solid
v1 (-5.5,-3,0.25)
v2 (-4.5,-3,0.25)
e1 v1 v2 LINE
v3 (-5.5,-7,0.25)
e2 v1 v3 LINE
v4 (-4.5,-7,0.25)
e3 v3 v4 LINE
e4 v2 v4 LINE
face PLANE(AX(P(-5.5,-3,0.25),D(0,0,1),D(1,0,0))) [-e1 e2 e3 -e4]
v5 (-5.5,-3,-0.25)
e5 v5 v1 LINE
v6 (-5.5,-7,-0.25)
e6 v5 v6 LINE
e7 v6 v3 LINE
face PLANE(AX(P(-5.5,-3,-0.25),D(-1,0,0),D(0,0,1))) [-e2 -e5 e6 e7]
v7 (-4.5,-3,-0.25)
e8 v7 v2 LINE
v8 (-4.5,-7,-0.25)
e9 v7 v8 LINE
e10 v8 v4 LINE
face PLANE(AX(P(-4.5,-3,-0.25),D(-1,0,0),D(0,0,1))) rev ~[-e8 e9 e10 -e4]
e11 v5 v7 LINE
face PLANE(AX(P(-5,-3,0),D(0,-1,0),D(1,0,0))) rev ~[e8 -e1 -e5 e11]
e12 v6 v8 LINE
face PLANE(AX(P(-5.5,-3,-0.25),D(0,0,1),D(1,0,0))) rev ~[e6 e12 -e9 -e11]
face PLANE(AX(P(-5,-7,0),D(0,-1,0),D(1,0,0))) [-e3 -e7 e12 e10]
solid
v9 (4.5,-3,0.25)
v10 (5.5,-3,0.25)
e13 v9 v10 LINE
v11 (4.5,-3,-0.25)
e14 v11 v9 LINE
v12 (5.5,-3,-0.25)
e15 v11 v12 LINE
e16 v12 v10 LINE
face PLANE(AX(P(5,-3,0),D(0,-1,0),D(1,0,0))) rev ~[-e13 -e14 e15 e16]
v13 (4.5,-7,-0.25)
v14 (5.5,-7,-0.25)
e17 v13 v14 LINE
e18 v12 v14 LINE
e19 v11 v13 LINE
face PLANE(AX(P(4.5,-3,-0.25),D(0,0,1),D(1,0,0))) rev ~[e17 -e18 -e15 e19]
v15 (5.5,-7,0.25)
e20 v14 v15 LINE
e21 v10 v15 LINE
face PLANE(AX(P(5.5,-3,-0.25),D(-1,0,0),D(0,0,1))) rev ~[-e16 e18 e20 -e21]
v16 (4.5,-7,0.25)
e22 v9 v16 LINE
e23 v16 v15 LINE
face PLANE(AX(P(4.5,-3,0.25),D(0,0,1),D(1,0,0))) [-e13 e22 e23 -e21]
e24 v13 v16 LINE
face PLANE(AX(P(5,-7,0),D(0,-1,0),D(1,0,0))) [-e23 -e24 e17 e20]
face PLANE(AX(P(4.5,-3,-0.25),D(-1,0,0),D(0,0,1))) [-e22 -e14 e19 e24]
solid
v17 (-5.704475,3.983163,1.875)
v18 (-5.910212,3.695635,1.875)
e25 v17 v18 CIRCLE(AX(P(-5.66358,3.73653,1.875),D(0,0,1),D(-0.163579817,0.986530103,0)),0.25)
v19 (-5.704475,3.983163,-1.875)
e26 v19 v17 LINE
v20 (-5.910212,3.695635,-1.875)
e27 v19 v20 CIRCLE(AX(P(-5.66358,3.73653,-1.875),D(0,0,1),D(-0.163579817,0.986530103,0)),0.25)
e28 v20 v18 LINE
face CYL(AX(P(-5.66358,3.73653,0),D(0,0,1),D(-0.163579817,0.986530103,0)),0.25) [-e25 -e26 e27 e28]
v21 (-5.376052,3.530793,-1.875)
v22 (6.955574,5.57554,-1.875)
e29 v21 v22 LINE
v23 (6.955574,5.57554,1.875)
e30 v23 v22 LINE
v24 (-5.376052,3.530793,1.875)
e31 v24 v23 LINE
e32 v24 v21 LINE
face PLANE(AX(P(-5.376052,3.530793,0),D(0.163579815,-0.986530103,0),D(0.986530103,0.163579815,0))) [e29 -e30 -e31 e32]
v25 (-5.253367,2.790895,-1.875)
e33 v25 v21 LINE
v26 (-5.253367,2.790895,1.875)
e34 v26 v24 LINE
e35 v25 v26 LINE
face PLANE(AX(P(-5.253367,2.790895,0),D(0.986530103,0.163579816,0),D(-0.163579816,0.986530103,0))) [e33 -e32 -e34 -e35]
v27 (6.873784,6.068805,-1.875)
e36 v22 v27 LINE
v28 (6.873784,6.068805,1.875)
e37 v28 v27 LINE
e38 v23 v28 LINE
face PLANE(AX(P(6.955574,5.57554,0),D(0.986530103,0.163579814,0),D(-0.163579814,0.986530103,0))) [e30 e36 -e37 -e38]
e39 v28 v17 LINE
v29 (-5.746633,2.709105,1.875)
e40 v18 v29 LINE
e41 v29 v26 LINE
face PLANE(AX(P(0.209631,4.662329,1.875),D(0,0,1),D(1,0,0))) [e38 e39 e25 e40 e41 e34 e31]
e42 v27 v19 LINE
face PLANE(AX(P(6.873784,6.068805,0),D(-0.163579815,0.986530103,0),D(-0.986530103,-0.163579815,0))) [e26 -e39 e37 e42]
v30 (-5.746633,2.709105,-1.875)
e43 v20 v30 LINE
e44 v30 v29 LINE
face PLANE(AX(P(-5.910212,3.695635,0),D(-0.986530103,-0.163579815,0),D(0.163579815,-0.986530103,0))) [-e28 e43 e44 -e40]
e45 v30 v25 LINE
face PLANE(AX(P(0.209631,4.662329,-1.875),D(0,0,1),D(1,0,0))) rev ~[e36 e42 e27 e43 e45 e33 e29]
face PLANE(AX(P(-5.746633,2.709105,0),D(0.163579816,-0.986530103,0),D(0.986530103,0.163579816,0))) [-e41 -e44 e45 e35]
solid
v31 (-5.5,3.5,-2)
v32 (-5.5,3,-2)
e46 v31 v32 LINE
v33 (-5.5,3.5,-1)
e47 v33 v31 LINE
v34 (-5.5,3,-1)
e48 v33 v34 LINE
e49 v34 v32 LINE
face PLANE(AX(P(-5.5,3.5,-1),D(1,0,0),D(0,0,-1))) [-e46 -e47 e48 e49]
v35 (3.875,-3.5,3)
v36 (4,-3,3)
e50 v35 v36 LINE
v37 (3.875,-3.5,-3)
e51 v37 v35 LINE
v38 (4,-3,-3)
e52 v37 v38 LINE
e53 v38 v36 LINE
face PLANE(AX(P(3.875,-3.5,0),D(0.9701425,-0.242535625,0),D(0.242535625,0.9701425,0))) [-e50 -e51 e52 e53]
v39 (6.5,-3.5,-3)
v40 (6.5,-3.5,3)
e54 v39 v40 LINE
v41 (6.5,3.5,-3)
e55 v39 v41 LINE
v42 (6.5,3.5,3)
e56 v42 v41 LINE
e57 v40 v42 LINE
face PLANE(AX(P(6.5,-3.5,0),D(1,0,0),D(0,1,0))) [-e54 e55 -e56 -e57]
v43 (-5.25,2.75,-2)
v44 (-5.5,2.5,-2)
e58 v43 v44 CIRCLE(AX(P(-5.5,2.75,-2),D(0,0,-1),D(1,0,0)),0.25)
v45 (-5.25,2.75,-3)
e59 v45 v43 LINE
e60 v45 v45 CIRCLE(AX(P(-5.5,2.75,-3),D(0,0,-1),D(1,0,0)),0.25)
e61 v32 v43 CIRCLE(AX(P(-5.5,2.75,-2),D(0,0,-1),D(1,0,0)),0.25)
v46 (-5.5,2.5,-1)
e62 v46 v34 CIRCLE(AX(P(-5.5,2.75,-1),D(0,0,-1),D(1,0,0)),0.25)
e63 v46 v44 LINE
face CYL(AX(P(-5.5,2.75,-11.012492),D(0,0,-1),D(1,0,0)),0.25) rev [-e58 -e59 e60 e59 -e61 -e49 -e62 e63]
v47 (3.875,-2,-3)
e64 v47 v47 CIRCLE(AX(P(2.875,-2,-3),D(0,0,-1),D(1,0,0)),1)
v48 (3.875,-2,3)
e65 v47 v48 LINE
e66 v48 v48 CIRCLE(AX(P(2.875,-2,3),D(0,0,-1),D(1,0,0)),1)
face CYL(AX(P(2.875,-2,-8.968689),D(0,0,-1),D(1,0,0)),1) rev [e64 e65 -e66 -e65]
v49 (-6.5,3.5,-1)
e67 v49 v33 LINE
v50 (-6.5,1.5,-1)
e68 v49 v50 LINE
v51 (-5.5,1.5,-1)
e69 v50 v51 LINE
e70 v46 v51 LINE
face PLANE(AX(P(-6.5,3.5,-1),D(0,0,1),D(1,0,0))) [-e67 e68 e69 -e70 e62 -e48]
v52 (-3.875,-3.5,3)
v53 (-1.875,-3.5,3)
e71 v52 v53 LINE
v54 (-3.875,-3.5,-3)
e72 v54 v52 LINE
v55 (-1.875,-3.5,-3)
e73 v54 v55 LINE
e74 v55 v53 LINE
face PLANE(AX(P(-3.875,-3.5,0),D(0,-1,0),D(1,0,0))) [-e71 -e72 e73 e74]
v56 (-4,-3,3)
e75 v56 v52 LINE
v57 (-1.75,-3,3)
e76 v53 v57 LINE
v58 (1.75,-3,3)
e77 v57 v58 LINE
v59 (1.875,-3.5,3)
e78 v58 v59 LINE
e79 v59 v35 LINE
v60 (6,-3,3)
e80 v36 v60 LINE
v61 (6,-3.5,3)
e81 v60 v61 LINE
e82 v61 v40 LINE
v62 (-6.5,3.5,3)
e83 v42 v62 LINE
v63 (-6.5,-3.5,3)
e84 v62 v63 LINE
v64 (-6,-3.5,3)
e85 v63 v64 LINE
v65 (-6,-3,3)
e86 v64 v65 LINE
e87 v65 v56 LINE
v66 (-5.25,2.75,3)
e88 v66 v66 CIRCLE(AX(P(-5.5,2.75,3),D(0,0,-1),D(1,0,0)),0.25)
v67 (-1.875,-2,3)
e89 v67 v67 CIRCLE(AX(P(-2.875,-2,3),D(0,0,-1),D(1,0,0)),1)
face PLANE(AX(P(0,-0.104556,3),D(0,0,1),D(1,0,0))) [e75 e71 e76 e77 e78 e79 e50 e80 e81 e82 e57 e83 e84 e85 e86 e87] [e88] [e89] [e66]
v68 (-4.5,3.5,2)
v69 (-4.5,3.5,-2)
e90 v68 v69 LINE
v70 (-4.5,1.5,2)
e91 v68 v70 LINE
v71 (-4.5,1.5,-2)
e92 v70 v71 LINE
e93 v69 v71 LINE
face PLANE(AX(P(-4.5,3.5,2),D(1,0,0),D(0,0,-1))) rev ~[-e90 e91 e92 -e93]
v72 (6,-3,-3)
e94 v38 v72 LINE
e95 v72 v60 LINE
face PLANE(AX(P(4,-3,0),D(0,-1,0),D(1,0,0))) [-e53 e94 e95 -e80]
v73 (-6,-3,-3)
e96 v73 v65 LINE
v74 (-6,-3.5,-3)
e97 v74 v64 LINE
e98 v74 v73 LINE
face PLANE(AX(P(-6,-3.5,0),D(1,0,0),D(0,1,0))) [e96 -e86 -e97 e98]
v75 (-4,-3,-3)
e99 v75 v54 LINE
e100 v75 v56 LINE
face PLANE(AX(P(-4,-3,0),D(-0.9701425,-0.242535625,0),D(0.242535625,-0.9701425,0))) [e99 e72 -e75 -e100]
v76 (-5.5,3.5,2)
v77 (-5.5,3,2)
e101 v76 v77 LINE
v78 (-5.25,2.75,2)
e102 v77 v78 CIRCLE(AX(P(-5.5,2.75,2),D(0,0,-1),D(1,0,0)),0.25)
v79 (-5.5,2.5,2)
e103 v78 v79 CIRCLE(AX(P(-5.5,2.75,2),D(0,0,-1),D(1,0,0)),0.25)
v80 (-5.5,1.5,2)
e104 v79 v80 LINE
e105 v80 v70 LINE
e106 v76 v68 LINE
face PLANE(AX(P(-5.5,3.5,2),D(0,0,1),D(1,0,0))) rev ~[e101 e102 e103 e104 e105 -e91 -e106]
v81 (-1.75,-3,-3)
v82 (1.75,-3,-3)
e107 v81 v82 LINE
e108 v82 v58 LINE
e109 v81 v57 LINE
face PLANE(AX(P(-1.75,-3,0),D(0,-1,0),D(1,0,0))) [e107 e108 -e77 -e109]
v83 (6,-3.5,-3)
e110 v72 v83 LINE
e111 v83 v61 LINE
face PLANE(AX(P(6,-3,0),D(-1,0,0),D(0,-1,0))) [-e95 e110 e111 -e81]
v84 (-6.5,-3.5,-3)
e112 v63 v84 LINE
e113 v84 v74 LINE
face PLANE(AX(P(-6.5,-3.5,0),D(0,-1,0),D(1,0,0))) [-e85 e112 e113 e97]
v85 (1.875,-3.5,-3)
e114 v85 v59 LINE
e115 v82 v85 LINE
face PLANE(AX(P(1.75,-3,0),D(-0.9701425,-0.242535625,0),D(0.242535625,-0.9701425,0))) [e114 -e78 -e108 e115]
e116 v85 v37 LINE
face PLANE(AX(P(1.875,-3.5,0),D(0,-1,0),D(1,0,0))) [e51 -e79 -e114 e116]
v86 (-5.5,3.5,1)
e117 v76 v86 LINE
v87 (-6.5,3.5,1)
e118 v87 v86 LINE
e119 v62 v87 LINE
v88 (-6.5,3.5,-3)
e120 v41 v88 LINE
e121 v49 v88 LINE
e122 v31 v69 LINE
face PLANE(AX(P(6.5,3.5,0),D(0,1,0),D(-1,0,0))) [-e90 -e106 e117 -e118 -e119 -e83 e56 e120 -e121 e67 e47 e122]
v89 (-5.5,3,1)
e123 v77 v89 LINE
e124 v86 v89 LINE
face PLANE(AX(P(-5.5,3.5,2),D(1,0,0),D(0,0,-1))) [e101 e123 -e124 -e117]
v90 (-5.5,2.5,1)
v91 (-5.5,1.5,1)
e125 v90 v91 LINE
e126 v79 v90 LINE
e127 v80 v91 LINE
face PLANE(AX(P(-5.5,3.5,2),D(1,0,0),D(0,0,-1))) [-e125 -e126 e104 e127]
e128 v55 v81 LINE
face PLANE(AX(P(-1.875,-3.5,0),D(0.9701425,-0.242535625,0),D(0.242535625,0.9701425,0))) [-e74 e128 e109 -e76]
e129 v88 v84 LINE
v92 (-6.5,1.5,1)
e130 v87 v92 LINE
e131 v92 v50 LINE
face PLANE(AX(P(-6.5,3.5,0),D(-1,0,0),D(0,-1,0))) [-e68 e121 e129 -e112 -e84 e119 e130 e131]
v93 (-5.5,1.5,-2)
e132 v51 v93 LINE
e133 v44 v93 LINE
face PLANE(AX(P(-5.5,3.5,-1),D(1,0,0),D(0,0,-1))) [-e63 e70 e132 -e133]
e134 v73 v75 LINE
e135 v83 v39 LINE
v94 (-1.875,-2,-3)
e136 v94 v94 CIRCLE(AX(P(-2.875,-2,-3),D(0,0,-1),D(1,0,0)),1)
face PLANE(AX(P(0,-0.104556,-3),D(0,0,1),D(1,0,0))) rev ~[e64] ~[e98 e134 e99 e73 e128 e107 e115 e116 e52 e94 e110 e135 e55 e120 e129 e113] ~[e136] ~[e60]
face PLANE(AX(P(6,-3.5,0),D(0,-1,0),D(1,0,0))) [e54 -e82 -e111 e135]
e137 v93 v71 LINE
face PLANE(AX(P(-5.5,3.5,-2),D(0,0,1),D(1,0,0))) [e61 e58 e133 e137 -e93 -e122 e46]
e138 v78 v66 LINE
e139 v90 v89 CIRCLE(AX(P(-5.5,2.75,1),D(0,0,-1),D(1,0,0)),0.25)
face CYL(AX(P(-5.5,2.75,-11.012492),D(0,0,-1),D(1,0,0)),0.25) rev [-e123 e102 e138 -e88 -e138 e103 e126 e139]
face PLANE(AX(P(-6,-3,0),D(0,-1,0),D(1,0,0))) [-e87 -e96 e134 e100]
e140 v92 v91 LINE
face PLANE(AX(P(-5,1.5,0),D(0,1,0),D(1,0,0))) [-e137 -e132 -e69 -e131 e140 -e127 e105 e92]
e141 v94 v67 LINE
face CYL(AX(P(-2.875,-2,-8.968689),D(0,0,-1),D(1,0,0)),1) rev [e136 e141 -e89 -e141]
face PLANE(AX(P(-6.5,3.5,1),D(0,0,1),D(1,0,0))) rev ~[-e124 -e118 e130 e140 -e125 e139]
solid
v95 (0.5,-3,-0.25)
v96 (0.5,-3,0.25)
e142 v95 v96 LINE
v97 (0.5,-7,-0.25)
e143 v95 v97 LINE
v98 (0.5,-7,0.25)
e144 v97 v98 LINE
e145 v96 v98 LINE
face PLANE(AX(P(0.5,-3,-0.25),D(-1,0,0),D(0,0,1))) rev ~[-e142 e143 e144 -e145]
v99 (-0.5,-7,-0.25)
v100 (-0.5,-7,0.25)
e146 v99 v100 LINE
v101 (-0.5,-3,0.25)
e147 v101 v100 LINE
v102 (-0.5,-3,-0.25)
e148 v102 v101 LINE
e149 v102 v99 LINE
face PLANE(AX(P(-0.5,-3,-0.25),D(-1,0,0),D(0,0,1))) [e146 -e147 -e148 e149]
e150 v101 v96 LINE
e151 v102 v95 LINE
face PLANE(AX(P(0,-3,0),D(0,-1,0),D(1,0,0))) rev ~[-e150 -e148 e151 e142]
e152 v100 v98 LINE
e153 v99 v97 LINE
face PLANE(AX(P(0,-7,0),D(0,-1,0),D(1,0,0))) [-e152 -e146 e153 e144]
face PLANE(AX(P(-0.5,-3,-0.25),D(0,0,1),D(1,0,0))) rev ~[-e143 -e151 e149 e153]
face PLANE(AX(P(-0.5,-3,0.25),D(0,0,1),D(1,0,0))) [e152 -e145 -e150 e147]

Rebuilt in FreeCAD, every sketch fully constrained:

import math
import FreeCAD as App
import Part
import Sketcher

V = App.Vector
Q = App.Units.Quantity


def add_polygon(sketch, points):
    """Adds a closed chain of lines whose ends are joined by coincident constraints."""
    first, n = sketch.GeometryCount, len(points)
    for a, b in zip(points, points[1:] + points[:1]):
        sketch.addGeometry(Part.LineSegment(App.Vector(*a, 0), App.Vector(*b, 0)), False)
    for i in range(n):
        sketch.addConstraint(Sketcher.Constraint("Coincident", first + i, 2, first + (i + 1) % n, 1))

doc = App.newDocument("Part")
params = doc.addObject("Spreadsheet::Sheet", "Params")
for row, (alias, value) in enumerate([
    ("sketch1_width", "2 mm"),
    ("sketch1_width2", "13 mm"),
    ("sketch1_height", "7 mm"),
    ("sketch1_width3", "0.5 mm"),
    ("sketch1_width4", "3.5 mm"),
    ("pad1_length", "6 mm"),
    ("sketch2_diameter", "2 mm"),
    ("sketch3_diameter", "0.5 mm"),
    ("sketch4_width", "1 mm"),
    ("sketch4_height", "4 mm"),
    ("pocket3_length", "2 mm"),
    ("sketch5_width", "1 mm"),
    ("sketch5_height", "0.5 mm"),
    ("pad2_length", "4 mm"),
    ("sketch6_width", "1 mm"),
    ("sketch6_height", "0.5 mm"),
    ("pad3_length", "4 mm"),
    ("sketch7_width", "1 mm"),
    ("sketch7_height", "0.5 mm"),
    ("pad4_length", "4 mm"),
    ("sketch8_radius", "0.25 mm"),
    ("sketch8_length", "1 mm"),
    ("sketch8_length2", "0.5 mm"),
    ("sketch8_length3", "12.5 mm"),
    ("pad5_length", "3.75 mm"),
], start=1):
    params.set(f"A{row}", alias)
    params.set(f"B{row}", "=" + value)
    params.setAlias(f"B{row}", alias)

body = doc.addObject("PartDesign::Body", "Body")

sketch1 = body.newObject("Sketcher::SketchObject", "Sketch")
sketch1.AttachmentSupport = (doc.getObject("XY_Plane"), [""])
sketch1.MapMode = "FlatFace"
add_polygon(sketch1, [(-6.5, -3.5), (-6, -3.5), (-6, -3), (-4, -3), (-3.9, -3.5), (-1.9, -3.5), (-1.8, -3), (1.8, -3), (1.9, -3.5), (3.9, -3.5), (4, -3), (6, -3), (6, -3.5), (6.5, -3.5), (6.5, 3.5), (-6.5, 3.5)])
sketch1.addConstraint([
    Sketcher.Constraint("Horizontal", 0),
    Sketcher.Constraint("Vertical", 1),
    Sketcher.Constraint("Horizontal", 2),
    Sketcher.Constraint("Horizontal", 4),
    Sketcher.Constraint("Horizontal", 6),
    Sketcher.Constraint("Horizontal", 8),
    Sketcher.Constraint("Horizontal", 10),
    Sketcher.Constraint("Vertical", 11),
    Sketcher.Constraint("Horizontal", 12),
    Sketcher.Constraint("Vertical", 13),
    Sketcher.Constraint("Horizontal", 14),
    Sketcher.Constraint("Vertical", 15),
    Sketcher.Constraint("Symmetric", 12, 2, 14, 2, -1, 1),
    Sketcher.Constraint("Symmetric", 4, 2, 7, 2, -2),
    Sketcher.Constraint("Symmetric", 2, 2, 9, 2, -2),
    Sketcher.Constraint("Symmetric", 0, 2, 11, 2, -2),
    Sketcher.Constraint("Parallel", 3, 7),
    Sketcher.Constraint("Parallel", 5, 9),
    Sketcher.Constraint("Horizontal", 0, 2, 3, 2),
    Sketcher.Constraint("Horizontal", 2, 2, 5, 2),
    Sketcher.Constraint("Equal", 2, 4),
    Sketcher.Constraint("Equal", 4, 8),
    Sketcher.Constraint("Equal", 12, 1),
    Sketcher.Constraint("DistanceX", 2, 1, 2, 2, Q("2 mm")),
    Sketcher.Constraint("DistanceX", 14, 2, 14, 1, Q("13 mm")),
    Sketcher.Constraint("DistanceY", 13, 1, 13, 2, Q("7 mm")),
    Sketcher.Constraint("DistanceX", 0, 1, 0, 2, Q("0.5 mm")),
    Sketcher.Constraint("DistanceX", 6, 1, 6, 2, Q("3.5 mm")),
])
sketch1.setExpression("Constraints[39]", "Params.sketch1_width")
sketch1.setExpression("Constraints[40]", "Params.sketch1_width2")
sketch1.setExpression("Constraints[41]", "Params.sketch1_height")
sketch1.setExpression("Constraints[42]", "Params.sketch1_width3")
sketch1.setExpression("Constraints[43]", "Params.sketch1_width4")
pad1 = body.newObject("PartDesign::Pad", "Pad")
pad1.Profile = sketch1
pad1.setExpression("Length", "Params.pad1_length")
pad1.Midplane = True

sketch2 = body.newObject("Sketcher::SketchObject", "Sketch001")
sketch2.AttachmentSupport = (doc.getObject("XY_Plane"), [""])
sketch2.MapMode = "FlatFace"
sketch2.addGeometry([
    Part.Circle(V(-2.9, -2, 0), V(0, 0, 1), 1),
    Part.Circle(V(2.9, -2, 0), V(0, 0, 1), 1),
], False)
sketch2.addConstraint([
    Sketcher.Constraint("Equal", 0, 1),
    Sketcher.Constraint("Symmetric", 0, 3, 1, 3, -2),
    Sketcher.Constraint("Diameter", 0, Q("2 mm")),
    Sketcher.Constraint("DistanceY", 0, 3, -1, 1, Q("2 mm")),
    Sketcher.Constraint("DistanceX", 0, 3, 1, 3, Q("5.75 mm")),
])
sketch2.setExpression("Constraints[2]", "Params.sketch2_diameter")
pocket1 = body.newObject("PartDesign::Pocket", "Pocket")
pocket1.Profile = sketch2
pocket1.Type = "ThroughAll"
pocket1.Midplane = True

sketch3 = body.newObject("Sketcher::SketchObject", "Sketch002")
sketch3.AttachmentSupport = (doc.getObject("XY_Plane"), [""])
sketch3.MapMode = "FlatFace"
sketch3.addGeometry(Part.Circle(V(-5.5, 2.75, 0), V(0, 0, 1), 0.25), False)
sketch3.addConstraint([
    Sketcher.Constraint("Diameter", 0, Q("0.5 mm")),
    Sketcher.Constraint("DistanceX", 0, 3, -1, 1, Q("5.5 mm")),
    Sketcher.Constraint("DistanceY", -1, 1, 0, 3, Q("2.75 mm")),
])
sketch3.setExpression("Constraints[0]", "Params.sketch3_diameter")
pocket2 = body.newObject("PartDesign::Pocket", "Pocket001")
pocket2.Profile = sketch3
pocket2.Type = "ThroughAll"
pocket2.Midplane = True

sketch4 = body.newObject("Sketcher::SketchObject", "Sketch003")
sketch4.AttachmentSupport = (doc.getObject("XZ_Plane"), [""])
sketch4.MapMode = "FlatFace"
sketch4.AttachmentOffset = App.Placement(V(0, 0, -3.5), App.Rotation())
add_polygon(sketch4, [(-5.5, 1), (-5.5, 2), (-4.5, 2), (-4.5, -2), (-5.5, -2), (-5.5, -1), (-6.5, -1), (-6.5, 1)])
sketch4.addConstraint([
    Sketcher.Constraint("Vertical", 0),
    Sketcher.Constraint("Horizontal", 1),
    Sketcher.Constraint("Vertical", 2),
    Sketcher.Constraint("Horizontal", 3),
    Sketcher.Constraint("Vertical", 4),
    Sketcher.Constraint("Horizontal", 5),
    Sketcher.Constraint("Vertical", 6),
    Sketcher.Constraint("Horizontal", 7),
    Sketcher.Constraint("Symmetric", 0, 2, 3, 2, -1),
    Sketcher.Constraint("Equal", 3, 5),
    Sketcher.Constraint("Equal", 7, 0),
    Sketcher.Constraint("Equal", 0, 4),
    Sketcher.Constraint("DistanceX", 1, 1, 1, 2, Q("1 mm")),
    Sketcher.Constraint("DistanceY", 2, 2, 2, 1, Q("4 mm")),
    Sketcher.Constraint("DistanceX", 0, 2, -1, 1, Q("5.5 mm")),
])
sketch4.setExpression("Constraints[20]", "Params.sketch4_width")
sketch4.setExpression("Constraints[21]", "Params.sketch4_height")
pocket3 = body.newObject("PartDesign::Pocket", "Pocket002")
pocket3.Profile = sketch4
pocket3.setExpression("Length", "Params.pocket3_length")
pocket3.Reversed = True
body2 = doc.addObject("PartDesign::Body", "Body001")

sketch5 = body2.newObject("Sketcher::SketchObject", "Sketch004")
sketch5.AttachmentSupport = (doc.getObject("XZ_Plane001"), [""])
sketch5.MapMode = "FlatFace"
sketch5.AttachmentOffset = App.Placement(V(0, 0, 3), App.Rotation())
add_polygon(sketch5, [(-0.5, 0.2), (-0.5, -0.2), (0.5, -0.2), (0.5, 0.2)])
sketch5.addConstraint([
    Sketcher.Constraint("Vertical", 0),
    Sketcher.Constraint("Horizontal", 1),
    Sketcher.Constraint("Vertical", 2),
    Sketcher.Constraint("Horizontal", 3),
    Sketcher.Constraint("Symmetric", 0, 2, 2, 2, -1, 1),
    Sketcher.Constraint("DistanceX", 1, 1, 1, 2, Q("1 mm")),
    Sketcher.Constraint("DistanceY", 0, 2, 0, 1, Q("0.5 mm")),
])
sketch5.setExpression("Constraints[9]", "Params.sketch5_width")
sketch5.setExpression("Constraints[10]", "Params.sketch5_height")
pad2 = body2.newObject("PartDesign::Pad", "Pad001")
pad2.Profile = sketch5
pad2.setExpression("Length", "Params.pad2_length")
body3 = doc.addObject("PartDesign::Body", "Body002")

sketch6 = body3.newObject("Sketcher::SketchObject", "Sketch005")
sketch6.AttachmentSupport = (doc.getObject("XZ_Plane002"), [""])
sketch6.MapMode = "FlatFace"
sketch6.AttachmentOffset = App.Placement(V(0, 0, 3), App.Rotation())
add_polygon(sketch6, [(-5.5, 0.2), (-5.5, -0.2), (-4.5, -0.2), (-4.5, 0.2)])
sketch6.addConstraint([
    Sketcher.Constraint("Vertical", 0),
    Sketcher.Constraint("Horizontal", 1),
    Sketcher.Constraint("Vertical", 2),
    Sketcher.Constraint("Horizontal", 3),
    Sketcher.Constraint("DistanceX", 1, 1, 1, 2, Q("1 mm")),
    Sketcher.Constraint("DistanceY", 0, 2, 0, 1, Q("0.5 mm")),
    Sketcher.Constraint("DistanceX", 0, 2, -1, 1, Q("5.5 mm")),
    Sketcher.Constraint("DistanceY", 0, 2, -1, 1, Q("0.25 mm")),
])
sketch6.setExpression("Constraints[8]", "Params.sketch6_width")
sketch6.setExpression("Constraints[9]", "Params.sketch6_height")
pad3 = body3.newObject("PartDesign::Pad", "Pad002")
pad3.Profile = sketch6
pad3.setExpression("Length", "Params.pad3_length")
body4 = doc.addObject("PartDesign::Body", "Body003")

sketch7 = body4.newObject("Sketcher::SketchObject", "Sketch006")
sketch7.AttachmentSupport = (doc.getObject("XZ_Plane003"), [""])
sketch7.MapMode = "FlatFace"
sketch7.AttachmentOffset = App.Placement(V(0, 0, 3), App.Rotation())
add_polygon(sketch7, [(4.5, 0.2), (4.5, -0.2), (5.5, -0.2), (5.5, 0.2)])
sketch7.addConstraint([
    Sketcher.Constraint("Vertical", 0),
    Sketcher.Constraint("Horizontal", 1),
    Sketcher.Constraint("Vertical", 2),
    Sketcher.Constraint("Horizontal", 3),
    Sketcher.Constraint("DistanceX", 1, 1, 1, 2, Q("1 mm")),
    Sketcher.Constraint("DistanceY", 0, 2, 0, 1, Q("0.5 mm")),
    Sketcher.Constraint("DistanceX", -1, 1, 0, 2, Q("4.5 mm")),
    Sketcher.Constraint("DistanceY", 0, 2, -1, 1, Q("0.25 mm")),
])
sketch7.setExpression("Constraints[8]", "Params.sketch7_width")
sketch7.setExpression("Constraints[9]", "Params.sketch7_height")
pad4 = body4.newObject("PartDesign::Pad", "Pad003")
pad4.Profile = sketch7
pad4.setExpression("Length", "Params.pad4_length")
body5 = doc.addObject("PartDesign::Body", "Body004")

sketch8 = body5.newObject("Sketcher::SketchObject", "Sketch007")
sketch8.AttachmentSupport = (doc.getObject("XY_Plane004"), [""])
sketch8.MapMode = "FlatFace"
sketch8.addGeometry([
    Part.LineSegment(V(6.87, 6.07, 0), V(-5.7, 3.98, 0)),
    Part.ArcOfCircle(Part.Circle(V(-5.66, 3.74, 0), V(0, 0, 1), 0.25), math.radians(99), math.radians(189)),
    Part.LineSegment(V(-5.91, 3.7, 0), V(-5.75, 2.71, 0)),
    Part.LineSegment(V(-5.75, 2.71, 0), V(-5.25, 2.79, 0)),
    Part.LineSegment(V(-5.25, 2.79, 0), V(-5.38, 3.53, 0)),
    Part.LineSegment(V(-5.38, 3.53, 0), V(6.96, 5.58, 0)),
    Part.LineSegment(V(6.96, 5.58, 0), V(6.87, 6.07, 0)),
], False)
sketch8.addConstraint([
    Sketcher.Constraint("Tangent", 0, 2, 1, 1),
    Sketcher.Constraint("Tangent", 1, 2, 2, 1),
    Sketcher.Constraint("Coincident", 2, 2, 3, 1),
    Sketcher.Constraint("Coincident", 3, 2, 4, 1),
    Sketcher.Constraint("Coincident", 4, 2, 5, 1),
    Sketcher.Constraint("Coincident", 5, 2, 6, 1),
    Sketcher.Constraint("Coincident", 6, 2, 0, 1),
    Sketcher.Constraint("Perpendicular", 0, 2),
    Sketcher.Constraint("Perpendicular", 2, 3),
    Sketcher.Constraint("Perpendicular", 3, 4),
    Sketcher.Constraint("Perpendicular", 4, 5),
    Sketcher.Constraint("Perpendicular", 5, 6),
    Sketcher.Constraint("Equal", 3, 6),
    Sketcher.Constraint("Radius", 1, Q("0.25 mm")),
    Sketcher.Constraint("Distance", 2, Q("1 mm")),
    Sketcher.Constraint("Distance", 3, Q("0.5 mm")),
    Sketcher.Constraint("Distance", 5, Q("12.5 mm")),
    Sketcher.Constraint("DistanceX", 1, 3, -1, 1, Q("5.66358 mm")),
    Sketcher.Constraint("DistanceY", -1, 1, 1, 3, Q("3.73653 mm")),
    Sketcher.Constraint("DistanceY", -1, 1, 5, 2, Q("5.57554 mm")),
])
sketch8.setExpression("Constraints[13]", "Params.sketch8_radius")
sketch8.setExpression("Constraints[14]", "Params.sketch8_length")
sketch8.setExpression("Constraints[15]", "Params.sketch8_length2")
sketch8.setExpression("Constraints[16]", "Params.sketch8_length3")
pad5 = body5.newObject("PartDesign::Pad", "Pad004")
pad5.Profile = sketch8
pad5.setExpression("Length", "Params.pad5_length")
pad5.Midplane = True

doc.recompute()
